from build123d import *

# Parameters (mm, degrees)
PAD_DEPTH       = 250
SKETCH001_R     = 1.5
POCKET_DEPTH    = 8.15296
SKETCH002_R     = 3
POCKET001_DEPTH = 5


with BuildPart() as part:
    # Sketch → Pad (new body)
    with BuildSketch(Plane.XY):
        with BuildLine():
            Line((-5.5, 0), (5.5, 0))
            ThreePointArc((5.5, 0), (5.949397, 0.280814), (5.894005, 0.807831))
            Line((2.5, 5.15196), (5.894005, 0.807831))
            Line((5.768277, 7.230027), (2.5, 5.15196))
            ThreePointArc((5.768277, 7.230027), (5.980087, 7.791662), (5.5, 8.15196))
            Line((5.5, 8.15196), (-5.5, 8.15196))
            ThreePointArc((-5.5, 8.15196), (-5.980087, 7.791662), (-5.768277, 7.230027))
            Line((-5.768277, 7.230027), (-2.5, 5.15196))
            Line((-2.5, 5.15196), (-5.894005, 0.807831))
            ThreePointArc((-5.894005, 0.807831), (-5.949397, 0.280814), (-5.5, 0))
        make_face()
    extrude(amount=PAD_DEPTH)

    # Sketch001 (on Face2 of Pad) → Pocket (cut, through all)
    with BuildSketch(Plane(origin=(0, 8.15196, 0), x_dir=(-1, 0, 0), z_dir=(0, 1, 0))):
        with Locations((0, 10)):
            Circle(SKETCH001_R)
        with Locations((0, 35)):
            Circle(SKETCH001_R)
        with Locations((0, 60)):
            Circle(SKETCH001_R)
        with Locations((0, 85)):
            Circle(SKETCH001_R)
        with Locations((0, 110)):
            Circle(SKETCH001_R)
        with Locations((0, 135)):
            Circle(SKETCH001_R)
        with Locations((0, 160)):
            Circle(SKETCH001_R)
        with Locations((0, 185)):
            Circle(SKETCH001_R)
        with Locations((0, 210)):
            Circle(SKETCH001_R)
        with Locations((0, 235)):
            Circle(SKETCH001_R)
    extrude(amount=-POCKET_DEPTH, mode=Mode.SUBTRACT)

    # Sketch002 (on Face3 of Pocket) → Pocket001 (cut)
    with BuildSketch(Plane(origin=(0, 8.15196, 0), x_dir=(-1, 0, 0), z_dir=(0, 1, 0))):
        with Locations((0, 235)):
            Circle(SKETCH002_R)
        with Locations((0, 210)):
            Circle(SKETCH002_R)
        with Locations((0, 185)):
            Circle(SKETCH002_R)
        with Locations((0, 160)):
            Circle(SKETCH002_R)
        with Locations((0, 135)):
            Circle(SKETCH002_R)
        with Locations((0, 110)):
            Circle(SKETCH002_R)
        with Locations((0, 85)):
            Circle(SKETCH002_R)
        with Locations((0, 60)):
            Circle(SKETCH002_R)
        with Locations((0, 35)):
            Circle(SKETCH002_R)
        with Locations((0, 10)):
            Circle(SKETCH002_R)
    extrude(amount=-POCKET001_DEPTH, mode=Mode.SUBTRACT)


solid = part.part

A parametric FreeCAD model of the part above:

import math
import FreeCAD as App
import Part
import Sketcher
Q = App.Units.Quantity

doc = App.newDocument("Part")
body = doc.addObject("PartDesign::Body", "Body")

# Sketch on XY plane
sketch1 = body.newObject("Sketcher::SketchObject", "Sketch")
sketch1.AttachmentSupport = (doc.getObject("XY_Plane"), [""])
sketch1.MapMode = "FlatFace"
sketch1.addGeometry([
    Part.LineSegment(App.Vector(-5.5, 0, 0), App.Vector(5.5, 0, 0)),  # 0
    Part.ArcOfCircle(Part.Circle(App.Vector(5.5, 0.5, 0), App.Vector(0, 0, 1), 0.5), math.radians(-90), math.radians(38)),  # 1
    Part.LineSegment(App.Vector(5.89, 0.81, 0), App.Vector(2.5, 5.15, 0)),  # 2
    Part.LineSegment(App.Vector(2.5, 5.15, 0), App.Vector(5.77, 7.23, 0)),  # 3
    Part.ArcOfCircle(Part.Circle(App.Vector(5.5, 7.65, 0), App.Vector(0, 0, 1), 0.5), math.radians(-58), math.radians(90)),  # 4
    Part.LineSegment(App.Vector(5.5, 8.15, 0), App.Vector(-5.5, 8.15, 0)),  # 5
    Part.ArcOfCircle(Part.Circle(App.Vector(-5.5, 7.65, 0), App.Vector(0, 0, 1), 0.5), math.radians(90), math.radians(238)),  # 6
    Part.LineSegment(App.Vector(-5.77, 7.23, 0), App.Vector(-2.5, 5.15, 0)),  # 7
    Part.LineSegment(App.Vector(-2.5, 5.15, 0), App.Vector(-5.89, 0.81, 0)),  # 8
    Part.ArcOfCircle(Part.Circle(App.Vector(-5.5, 0.5, 0), App.Vector(0, 0, 1), 0.5), math.radians(142), math.radians(270)),  # 9
], False)
sketch1.addConstraint([
    Sketcher.Constraint("Tangent", 0, 2, 1, 1),
    Sketcher.Constraint("Tangent", 1, 2, 2, 1),
    Sketcher.Constraint("Coincident", 2, 2, 3, 1),
    Sketcher.Constraint("Tangent", 3, 2, 4, 1),
    Sketcher.Constraint("Tangent", 4, 2, 5, 1),
    Sketcher.Constraint("Tangent", 5, 2, 6, 1),
    Sketcher.Constraint("Tangent", 6, 2, 7, 1),
    Sketcher.Constraint("Coincident", 7, 2, 8, 1),
    Sketcher.Constraint("Tangent", 8, 2, 9, 1),
    Sketcher.Constraint("Tangent", 9, 2, 0, 1),
    Sketcher.Constraint("Horizontal", 0),
    Sketcher.Constraint("Horizontal", 5),
    Sketcher.Constraint("Equal", 1, 4),
    Sketcher.Constraint("Equal", 4, 6),
    Sketcher.Constraint("Equal", 6, 9),
    Sketcher.Constraint("Symmetric", 0, 2, 9, 2, -1, 1),
    Sketcher.Constraint("Symmetric", 3, 2, 6, 2, -2),
    Sketcher.Constraint("Horizontal", 2, 2, 7, 2),
    Sketcher.Constraint("Vertical", 1, 3, 4, 3),
    Sketcher.Constraint("Radius", 1, Q("0.5 mm")),
    Sketcher.Constraint("DistanceX", 0, 1, 0, 2, Q("11 mm")),
    Sketcher.Constraint("Angle", 2, Q("127.999996 deg")),
    Sketcher.Constraint("DistanceX", 2, 2, 4, 3, Q("3 mm")),
    Sketcher.Constraint("DistanceY", 2, 2, 4, 2, Q("3 mm")),
])
pad1 = body.newObject("PartDesign::Pad", "Pad")
pad1.Profile = sketch1
pad1.Length = 250

# Sketch on XZ plane
sketch2 = body.newObject("Sketcher::SketchObject", "Sketch001")
sketch2.AttachmentSupport = (doc.getObject("XZ_Plane"), [""])
sketch2.MapMode = "FlatFace"
sketch2.AttachmentOffset = App.Placement(App.Vector(0, 0, -8.15196), App.Rotation())
sketch2.addGeometry([
    Part.Circle(App.Vector(0, 10, 0), App.Vector(0, 0, 1), 1.5),  # 0
    Part.Circle(App.Vector(0, 35, 0), App.Vector(0, 0, 1), 1.5),  # 1
    Part.Circle(App.Vector(0, 60, 0), App.Vector(0, 0, 1), 1.5),  # 2
    Part.Circle(App.Vector(0, 85, 0), App.Vector(0, 0, 1), 1.5),  # 3
    Part.Circle(App.Vector(0, 110, 0), App.Vector(0, 0, 1), 1.5),  # 4
    Part.Circle(App.Vector(0, 135, 0), App.Vector(0, 0, 1), 1.5),  # 5
    Part.Circle(App.Vector(0, 160, 0), App.Vector(0, 0, 1), 1.5),  # 6
    Part.Circle(App.Vector(0, 185, 0), App.Vector(0, 0, 1), 1.5),  # 7
    Part.Circle(App.Vector(0, 210, 0), App.Vector(0, 0, 1), 1.5),  # 8
    Part.Circle(App.Vector(0, 235, 0), App.Vector(0, 0, 1), 1.5),  # 9
], False)
sketch2.addConstraint([
    Sketcher.Constraint("Equal", 0, 1),
    Sketcher.Constraint("Equal", 1, 2),
    Sketcher.Constraint("Equal", 2, 3),
    Sketcher.Constraint("Equal", 3, 4),
    Sketcher.Constraint("Equal", 4, 5),
    Sketcher.Constraint("Equal", 5, 6),
    Sketcher.Constraint("Equal", 6, 7),
    Sketcher.Constraint("Equal", 7, 8),
    Sketcher.Constraint("Equal", 8, 9),
    Sketcher.Constraint("PointOnObject", 0, 3, -2),
    Sketcher.Constraint("PointOnObject", 1, 3, -2),
    Sketcher.Constraint("PointOnObject", 2, 3, -2),
    Sketcher.Constraint("PointOnObject", 3, 3, -2),
    Sketcher.Constraint("PointOnObject", 4, 3, -2),
    Sketcher.Constraint("PointOnObject", 5, 3, -2),
    Sketcher.Constraint("PointOnObject", 6, 3, -2),
    Sketcher.Constraint("PointOnObject", 7, 3, -2),
    Sketcher.Constraint("PointOnObject", 8, 3, -2),
    Sketcher.Constraint("PointOnObject", 9, 3, -2),
    Sketcher.Constraint("Diameter", 0, Q("3 mm")),
    Sketcher.Constraint("DistanceY", -1, 1, 0, 3, Q("10 mm")),
    Sketcher.Constraint("DistanceY", -1, 1, 1, 3, Q("35 mm")),
    Sketcher.Constraint("DistanceY", -1, 1, 2, 3, Q("60 mm")),
    Sketcher.Constraint("DistanceY", -1, 1, 3, 3, Q("85 mm")),
    Sketcher.Constraint("DistanceY", -1, 1, 4, 3, Q("110 mm")),
    Sketcher.Constraint("DistanceY", -1, 1, 5, 3, Q("135 mm")),
    Sketcher.Constraint("DistanceY", -1, 1, 6, 3, Q("160 mm")),
    Sketcher.Constraint("DistanceY", -1, 1, 7, 3, Q("185 mm")),
    Sketcher.Constraint("DistanceY", -1, 1, 8, 3, Q("210 mm")),
    Sketcher.Constraint("DistanceY", -1, 1, 9, 3, Q("235 mm")),
])
pocket1 = body.newObject("PartDesign::Pocket", "Pocket")
pocket1.Profile = sketch2
pocket1.Type = "ThroughAll"
pocket1.Reversed = True

# Sketch on XZ plane
sketch3 = body.newObject("Sketcher::SketchObject", "Sketch002")
sketch3.AttachmentSupport = (doc.getObject("XZ_Plane"), [""])
sketch3.MapMode = "FlatFace"
sketch3.AttachmentOffset = App.Placement(App.Vector(0, 0, -8.15196), App.Rotation())
sketch3.addGeometry([
    Part.Circle(App.Vector(0, 235, 0), App.Vector(0, 0, 1), 3),  # 0
    Part.Circle(App.Vector(0, 210, 0), App.Vector(0, 0, 1), 3),  # 1
    Part.Circle(App.Vector(0, 185, 0), App.Vector(0, 0, 1), 3),  # 2
    Part.Circle(App.Vector(0, 160, 0), App.Vector(0, 0, 1), 3),  # 3
    Part.Circle(App.Vector(0, 135, 0), App.Vector(0, 0, 1), 3),  # 4
    Part.Circle(App.Vector(0, 110, 0), App.Vector(0, 0, 1), 3),  # 5
    Part.Circle(App.Vector(0, 85, 0), App.Vector(0, 0, 1), 3),  # 6
    Part.Circle(App.Vector(0, 60, 0), App.Vector(0, 0, 1), 3),  # 7
    Part.Circle(App.Vector(0, 35, 0), App.Vector(0, 0, 1), 3),  # 8
    Part.Circle(App.Vector(0, 10, 0), App.Vector(0, 0, 1), 3),  # 9
], False)
sketch3.addConstraint([
    Sketcher.Constraint("Equal", 0, 1),
    Sketcher.Constraint("Equal", 1, 2),
    Sketcher.Constraint("Equal", 2, 3),
    Sketcher.Constraint("Equal", 3, 4),
    Sketcher.Constraint("Equal", 4, 5),
    Sketcher.Constraint("Equal", 5, 6),
    Sketcher.Constraint("Equal", 6, 7),
    Sketcher.Constraint("Equal", 7, 8),
    Sketcher.Constraint("Equal", 8, 9),
    Sketcher.Constraint("PointOnObject", 0, 3, -2),
    Sketcher.Constraint("PointOnObject", 1, 3, -2),
    Sketcher.Constraint("PointOnObject", 2, 3, -2),
    Sketcher.Constraint("PointOnObject", 3, 3, -2),
    Sketcher.Constraint("PointOnObject", 4, 3, -2),
    Sketcher.Constraint("PointOnObject", 5, 3, -2),
    Sketcher.Constraint("PointOnObject", 6, 3, -2),
    Sketcher.Constraint("PointOnObject", 7, 3, -2),
    Sketcher.Constraint("PointOnObject", 8, 3, -2),
    Sketcher.Constraint("PointOnObject", 9, 3, -2),
    Sketcher.Constraint("Diameter", 0, Q("6 mm")),
    Sketcher.Constraint("DistanceY", -1, 1, 0, 3, Q("235 mm")),
    Sketcher.Constraint("DistanceY", -1, 1, 1, 3, Q("210 mm")),
    Sketcher.Constraint("DistanceY", -1, 1, 2, 3, Q("185 mm")),
    Sketcher.Constraint("DistanceY", -1, 1, 3, 3, Q("160 mm")),
    Sketcher.Constraint("DistanceY", -1, 1, 4, 3, Q("135 mm")),
    Sketcher.Constraint("DistanceY", -1, 1, 5, 3, Q("110 mm")),
    Sketcher.Constraint("DistanceY", -1, 1, 6, 3, Q("85 mm")),
    Sketcher.Constraint("DistanceY", -1, 1, 7, 3, Q("60 mm")),
    Sketcher.Constraint("DistanceY", -1, 1, 8, 3, Q("35 mm")),
    Sketcher.Constraint("DistanceY", -1, 1, 9, 3, Q("10 mm")),
])
pocket2 = body.newObject("PartDesign::Pocket", "Pocket001")
pocket2.Profile = sketch3
pocket2.Length = 5
pocket2.Reversed = True

doc.recompute()
